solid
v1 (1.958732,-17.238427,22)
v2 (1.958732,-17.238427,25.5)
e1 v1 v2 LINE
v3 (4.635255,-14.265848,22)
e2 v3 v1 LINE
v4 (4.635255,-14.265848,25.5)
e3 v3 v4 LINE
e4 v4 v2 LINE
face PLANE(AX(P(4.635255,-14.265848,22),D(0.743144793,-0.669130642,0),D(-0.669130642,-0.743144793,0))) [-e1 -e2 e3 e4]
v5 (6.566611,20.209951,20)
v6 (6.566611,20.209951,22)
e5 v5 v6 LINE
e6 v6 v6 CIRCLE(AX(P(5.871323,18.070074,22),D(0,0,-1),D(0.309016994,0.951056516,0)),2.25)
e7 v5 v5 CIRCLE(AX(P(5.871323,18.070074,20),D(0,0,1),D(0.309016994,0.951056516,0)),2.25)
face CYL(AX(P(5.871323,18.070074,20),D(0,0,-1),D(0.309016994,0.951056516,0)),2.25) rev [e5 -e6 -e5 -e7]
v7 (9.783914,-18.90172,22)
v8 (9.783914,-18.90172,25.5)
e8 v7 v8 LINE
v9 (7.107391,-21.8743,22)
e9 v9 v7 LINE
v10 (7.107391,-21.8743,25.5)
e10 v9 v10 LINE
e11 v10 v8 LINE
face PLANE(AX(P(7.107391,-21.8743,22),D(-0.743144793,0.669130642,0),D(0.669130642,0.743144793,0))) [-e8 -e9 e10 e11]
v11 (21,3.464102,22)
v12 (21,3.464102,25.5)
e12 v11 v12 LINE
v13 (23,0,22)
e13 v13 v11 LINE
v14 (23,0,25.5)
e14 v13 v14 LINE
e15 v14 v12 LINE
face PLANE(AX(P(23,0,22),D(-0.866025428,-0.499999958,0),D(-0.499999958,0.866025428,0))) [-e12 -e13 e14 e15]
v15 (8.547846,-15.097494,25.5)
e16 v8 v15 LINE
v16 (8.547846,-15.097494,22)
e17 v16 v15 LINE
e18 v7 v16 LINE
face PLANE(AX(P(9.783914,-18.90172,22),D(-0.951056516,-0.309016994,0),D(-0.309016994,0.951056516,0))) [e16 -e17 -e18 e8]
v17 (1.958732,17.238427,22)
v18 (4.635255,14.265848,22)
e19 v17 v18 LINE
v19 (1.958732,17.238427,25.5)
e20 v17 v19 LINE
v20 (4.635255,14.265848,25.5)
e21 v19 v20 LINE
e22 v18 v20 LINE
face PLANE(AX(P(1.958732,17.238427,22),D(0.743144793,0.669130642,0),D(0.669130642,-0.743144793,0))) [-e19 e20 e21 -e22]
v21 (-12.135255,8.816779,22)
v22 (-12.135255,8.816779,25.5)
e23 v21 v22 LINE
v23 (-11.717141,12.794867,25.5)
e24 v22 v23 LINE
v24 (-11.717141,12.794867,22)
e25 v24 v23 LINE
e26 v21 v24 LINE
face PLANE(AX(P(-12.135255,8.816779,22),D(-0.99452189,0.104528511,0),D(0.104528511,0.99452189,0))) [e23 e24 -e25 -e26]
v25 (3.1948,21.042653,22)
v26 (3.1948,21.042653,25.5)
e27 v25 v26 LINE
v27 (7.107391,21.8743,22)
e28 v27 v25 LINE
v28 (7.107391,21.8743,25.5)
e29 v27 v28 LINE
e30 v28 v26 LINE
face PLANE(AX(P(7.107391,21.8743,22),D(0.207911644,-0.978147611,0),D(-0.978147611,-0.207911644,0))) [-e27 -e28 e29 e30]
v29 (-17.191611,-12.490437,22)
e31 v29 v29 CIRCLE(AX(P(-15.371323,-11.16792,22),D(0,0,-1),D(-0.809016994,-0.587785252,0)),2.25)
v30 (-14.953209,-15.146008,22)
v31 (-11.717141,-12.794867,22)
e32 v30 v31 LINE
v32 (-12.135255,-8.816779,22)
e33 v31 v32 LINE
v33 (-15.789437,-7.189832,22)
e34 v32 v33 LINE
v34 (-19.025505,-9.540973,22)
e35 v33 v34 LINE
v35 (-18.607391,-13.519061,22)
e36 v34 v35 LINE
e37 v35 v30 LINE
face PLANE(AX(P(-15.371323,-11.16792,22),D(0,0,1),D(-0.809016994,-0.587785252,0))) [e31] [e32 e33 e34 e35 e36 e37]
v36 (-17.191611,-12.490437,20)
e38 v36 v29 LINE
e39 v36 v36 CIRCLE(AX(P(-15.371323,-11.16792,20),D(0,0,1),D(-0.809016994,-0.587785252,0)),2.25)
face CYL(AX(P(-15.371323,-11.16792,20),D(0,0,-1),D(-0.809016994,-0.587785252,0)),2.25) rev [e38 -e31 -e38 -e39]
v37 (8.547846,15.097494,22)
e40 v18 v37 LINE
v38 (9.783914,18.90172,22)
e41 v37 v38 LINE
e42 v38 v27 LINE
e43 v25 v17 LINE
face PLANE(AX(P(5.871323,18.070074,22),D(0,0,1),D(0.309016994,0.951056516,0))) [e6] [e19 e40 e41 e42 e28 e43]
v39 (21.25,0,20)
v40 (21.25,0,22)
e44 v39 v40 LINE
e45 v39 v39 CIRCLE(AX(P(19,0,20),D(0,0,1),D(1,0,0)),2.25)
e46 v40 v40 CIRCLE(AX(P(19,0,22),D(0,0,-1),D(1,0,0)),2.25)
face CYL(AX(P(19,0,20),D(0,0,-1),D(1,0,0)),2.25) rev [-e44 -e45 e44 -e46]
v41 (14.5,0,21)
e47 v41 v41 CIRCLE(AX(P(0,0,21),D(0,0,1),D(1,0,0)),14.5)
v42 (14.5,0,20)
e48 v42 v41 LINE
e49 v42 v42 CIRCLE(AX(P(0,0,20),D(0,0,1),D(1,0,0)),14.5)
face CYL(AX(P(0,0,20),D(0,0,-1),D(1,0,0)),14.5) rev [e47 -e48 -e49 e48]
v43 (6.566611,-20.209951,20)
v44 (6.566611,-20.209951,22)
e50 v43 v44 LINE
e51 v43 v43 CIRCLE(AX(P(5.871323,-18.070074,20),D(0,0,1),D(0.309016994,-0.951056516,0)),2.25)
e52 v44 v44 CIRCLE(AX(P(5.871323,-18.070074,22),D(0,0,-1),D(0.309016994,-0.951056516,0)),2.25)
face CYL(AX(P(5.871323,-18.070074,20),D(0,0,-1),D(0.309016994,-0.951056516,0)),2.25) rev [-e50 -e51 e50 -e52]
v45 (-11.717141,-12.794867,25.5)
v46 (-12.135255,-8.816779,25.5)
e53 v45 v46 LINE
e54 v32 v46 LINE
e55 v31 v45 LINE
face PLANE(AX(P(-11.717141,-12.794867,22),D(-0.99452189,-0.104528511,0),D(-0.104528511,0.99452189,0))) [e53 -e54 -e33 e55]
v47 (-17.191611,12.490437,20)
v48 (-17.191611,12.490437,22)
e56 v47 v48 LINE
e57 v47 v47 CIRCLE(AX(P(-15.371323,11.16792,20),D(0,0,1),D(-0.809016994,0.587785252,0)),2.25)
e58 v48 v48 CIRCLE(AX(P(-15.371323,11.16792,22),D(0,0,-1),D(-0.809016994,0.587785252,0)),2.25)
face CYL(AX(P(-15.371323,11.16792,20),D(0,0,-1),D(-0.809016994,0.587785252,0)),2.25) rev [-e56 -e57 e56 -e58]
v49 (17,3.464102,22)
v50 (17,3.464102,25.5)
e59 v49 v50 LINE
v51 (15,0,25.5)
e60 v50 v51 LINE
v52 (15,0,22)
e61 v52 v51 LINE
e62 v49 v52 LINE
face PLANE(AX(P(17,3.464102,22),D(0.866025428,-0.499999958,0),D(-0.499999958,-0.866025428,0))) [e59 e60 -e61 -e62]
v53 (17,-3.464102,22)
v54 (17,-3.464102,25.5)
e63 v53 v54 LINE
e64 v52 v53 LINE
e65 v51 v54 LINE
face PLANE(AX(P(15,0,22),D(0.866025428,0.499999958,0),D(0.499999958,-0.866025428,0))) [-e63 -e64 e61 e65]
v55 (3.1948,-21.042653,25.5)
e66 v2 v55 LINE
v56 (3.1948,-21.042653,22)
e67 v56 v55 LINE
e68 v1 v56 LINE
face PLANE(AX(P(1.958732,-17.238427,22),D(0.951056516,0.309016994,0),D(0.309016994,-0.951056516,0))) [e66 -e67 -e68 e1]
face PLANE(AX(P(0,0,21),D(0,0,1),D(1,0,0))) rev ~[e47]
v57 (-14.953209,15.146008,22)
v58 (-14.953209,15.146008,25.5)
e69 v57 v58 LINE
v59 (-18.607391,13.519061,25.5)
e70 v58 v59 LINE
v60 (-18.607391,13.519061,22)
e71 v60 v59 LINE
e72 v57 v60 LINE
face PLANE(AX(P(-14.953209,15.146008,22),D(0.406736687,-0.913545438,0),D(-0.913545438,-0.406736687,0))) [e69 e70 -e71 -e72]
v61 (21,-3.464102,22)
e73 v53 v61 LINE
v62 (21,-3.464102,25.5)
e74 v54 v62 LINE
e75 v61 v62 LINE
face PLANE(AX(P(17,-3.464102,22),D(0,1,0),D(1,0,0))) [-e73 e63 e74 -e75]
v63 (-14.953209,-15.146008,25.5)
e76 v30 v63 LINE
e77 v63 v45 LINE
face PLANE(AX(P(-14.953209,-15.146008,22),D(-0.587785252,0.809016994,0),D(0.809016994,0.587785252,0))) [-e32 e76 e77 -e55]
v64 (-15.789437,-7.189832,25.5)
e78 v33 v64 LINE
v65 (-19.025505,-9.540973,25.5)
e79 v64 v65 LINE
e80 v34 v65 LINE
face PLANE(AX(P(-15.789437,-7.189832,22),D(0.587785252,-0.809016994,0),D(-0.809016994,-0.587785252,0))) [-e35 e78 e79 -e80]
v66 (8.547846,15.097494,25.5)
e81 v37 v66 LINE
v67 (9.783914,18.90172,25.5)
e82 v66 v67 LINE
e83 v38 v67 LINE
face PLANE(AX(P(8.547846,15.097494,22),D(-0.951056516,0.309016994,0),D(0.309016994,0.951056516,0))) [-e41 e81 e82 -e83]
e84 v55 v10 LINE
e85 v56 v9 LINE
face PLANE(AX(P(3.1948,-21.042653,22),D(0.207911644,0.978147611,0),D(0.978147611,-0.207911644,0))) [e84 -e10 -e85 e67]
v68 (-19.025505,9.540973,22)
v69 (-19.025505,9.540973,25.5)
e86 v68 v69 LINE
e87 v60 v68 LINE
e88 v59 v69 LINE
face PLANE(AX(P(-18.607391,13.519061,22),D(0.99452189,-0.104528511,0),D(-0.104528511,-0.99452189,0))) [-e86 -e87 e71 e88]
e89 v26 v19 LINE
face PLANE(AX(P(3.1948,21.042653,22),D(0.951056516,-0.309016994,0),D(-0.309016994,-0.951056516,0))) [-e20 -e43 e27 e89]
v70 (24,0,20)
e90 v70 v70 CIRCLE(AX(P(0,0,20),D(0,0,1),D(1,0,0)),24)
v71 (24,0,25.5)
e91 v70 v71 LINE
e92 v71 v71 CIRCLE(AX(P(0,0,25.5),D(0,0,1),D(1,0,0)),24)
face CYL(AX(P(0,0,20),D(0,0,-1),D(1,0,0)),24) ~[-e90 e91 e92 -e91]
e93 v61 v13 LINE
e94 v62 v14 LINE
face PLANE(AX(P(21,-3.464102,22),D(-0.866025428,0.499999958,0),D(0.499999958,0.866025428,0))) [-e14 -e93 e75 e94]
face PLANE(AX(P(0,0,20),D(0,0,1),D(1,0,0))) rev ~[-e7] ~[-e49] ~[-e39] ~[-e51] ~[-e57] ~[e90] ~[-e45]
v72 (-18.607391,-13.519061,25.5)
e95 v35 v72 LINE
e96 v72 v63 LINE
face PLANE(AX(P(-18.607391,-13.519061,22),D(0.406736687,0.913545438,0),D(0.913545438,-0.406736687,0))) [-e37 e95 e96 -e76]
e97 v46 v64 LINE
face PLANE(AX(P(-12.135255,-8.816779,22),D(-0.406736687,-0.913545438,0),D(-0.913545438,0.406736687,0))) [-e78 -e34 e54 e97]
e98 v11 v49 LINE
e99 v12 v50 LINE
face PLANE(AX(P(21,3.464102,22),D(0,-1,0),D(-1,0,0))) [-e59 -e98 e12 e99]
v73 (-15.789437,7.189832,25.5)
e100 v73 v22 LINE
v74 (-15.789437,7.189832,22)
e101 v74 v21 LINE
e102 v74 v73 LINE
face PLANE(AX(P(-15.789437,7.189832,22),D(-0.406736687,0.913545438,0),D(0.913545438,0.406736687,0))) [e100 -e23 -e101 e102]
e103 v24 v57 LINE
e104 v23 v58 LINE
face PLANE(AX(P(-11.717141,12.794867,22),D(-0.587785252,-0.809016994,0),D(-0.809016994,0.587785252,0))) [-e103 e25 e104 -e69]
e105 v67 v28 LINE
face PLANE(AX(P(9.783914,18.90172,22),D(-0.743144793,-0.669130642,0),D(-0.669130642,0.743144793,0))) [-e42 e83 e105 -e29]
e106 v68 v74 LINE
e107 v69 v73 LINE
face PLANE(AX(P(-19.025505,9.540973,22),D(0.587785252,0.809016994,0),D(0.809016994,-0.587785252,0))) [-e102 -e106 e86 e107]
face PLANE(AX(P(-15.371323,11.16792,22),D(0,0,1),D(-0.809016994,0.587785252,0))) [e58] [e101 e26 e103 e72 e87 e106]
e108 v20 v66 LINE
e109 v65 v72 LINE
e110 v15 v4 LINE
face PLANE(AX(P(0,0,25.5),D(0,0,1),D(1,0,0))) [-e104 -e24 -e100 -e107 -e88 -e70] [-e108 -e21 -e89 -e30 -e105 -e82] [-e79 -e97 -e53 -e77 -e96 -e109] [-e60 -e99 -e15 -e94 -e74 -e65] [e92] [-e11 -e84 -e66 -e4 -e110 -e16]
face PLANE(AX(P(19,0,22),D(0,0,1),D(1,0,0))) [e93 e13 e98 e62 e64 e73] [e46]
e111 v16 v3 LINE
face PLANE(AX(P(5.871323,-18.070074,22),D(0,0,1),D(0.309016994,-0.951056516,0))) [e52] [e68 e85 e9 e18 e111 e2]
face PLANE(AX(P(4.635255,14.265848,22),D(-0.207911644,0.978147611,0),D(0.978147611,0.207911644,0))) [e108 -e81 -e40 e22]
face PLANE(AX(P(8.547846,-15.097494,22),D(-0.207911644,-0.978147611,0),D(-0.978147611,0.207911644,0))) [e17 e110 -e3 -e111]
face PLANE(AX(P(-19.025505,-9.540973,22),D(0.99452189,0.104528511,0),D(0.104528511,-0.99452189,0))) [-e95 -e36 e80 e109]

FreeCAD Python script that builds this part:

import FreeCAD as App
import Part
import Sketcher
from FreeCAD import Vector
Q = App.Units.Quantity


def add_polygon(sketch, points):
    """Adds a closed chain of lines whose ends are joined by coincident constraints."""
    first, n = sketch.GeometryCount, len(points)
    for a, b in zip(points, points[1:] + points[:1]):
        sketch.addGeometry(Part.LineSegment(App.Vector(*a, 0), App.Vector(*b, 0)), False)
    for i in range(n):
        sketch.addConstraint(Sketcher.Constraint("Coincident", first + i, 2, first + (i + 1) % n, 1))

doc = App.newDocument("Part")
body = doc.addObject("PartDesign::Body", "Body")

sketch1 = body.newObject("Sketcher::SketchObject", "Sketch")
sketch1.AttachmentSupport = (doc.getObject("XY_Plane"), [""])
sketch1.MapMode = "FlatFace"
sketch1.AttachmentOffset = App.Placement(Vector(0, 0, 20), App.Rotation())
sketch1.addGeometry(Part.Circle(Vector(0, 0, 0), Vector(0, 0, 1), 14), False)
sketch1.addConstraint(Sketcher.Constraint("Coincident", 0, 3, -1, 1))
sketch1.addConstraint(Sketcher.Constraint("Diameter", 0, Q("29 mm")))
pad1 = body.newObject("PartDesign::Pad", "Pad")
pad1.Profile = sketch1
pad1.Length = 1
body2 = doc.addObject("PartDesign::Body", "Body001")

sketch2 = body2.newObject("Sketcher::SketchObject", "Sketch001")
sketch2.AttachmentSupport = (doc.getObject("XY_Plane001"), [""])
sketch2.MapMode = "FlatFace"
add_polygon(sketch2, [(4, 0), (2, 3.5), (-2, 3.5), (-4, 0), (-2, -3.5), (2, -3.5)])
sketch2.addConstraint(Sketcher.Constraint("Horizontal", 1))
sketch2.addConstraint(Sketcher.Constraint("Horizontal", 4))
sketch2.addConstraint(Sketcher.Constraint("Symmetric", 0, 2, 3, 2, -1, 1))
sketch2.addConstraint(Sketcher.Constraint("Symmetric", 2, 2, 5, 2, -1, 1))
sketch2.addConstraint(Sketcher.Constraint("PointOnObject", 2, 2, -1))
sketch2.addConstraint(Sketcher.Constraint("Parallel", 2, 5))
sketch2.addConstraint(Sketcher.Constraint("Vertical", 1, 2, 3, 2))
sketch2.addConstraint(Sketcher.Constraint("DistanceX", 1, 2, 1, 1, Q("4 mm")))
sketch2.addConstraint(Sketcher.Constraint("Angle", 0, Q("119.999997 deg")))
sketch2.addConstraint(Sketcher.Constraint("Distance", 0, Q("4 mm")))
pad2 = body2.newObject("PartDesign::Pad", "Pad001")
pad2.Profile = sketch2
pad2.Length = 3.5
body3 = doc.addObject("PartDesign::Body", "Body002")
doc.recompute()

body2.Placement = App.Placement(Vector(19, 0, 22), App.Rotation(Vector(0, 0, 1), 0))
boolean = body3.newObject("PartDesign::Boolean", "Boolean")
boolean.Type = "Fuse"
boolean.addObjects([body2])
body4 = doc.addObject("PartDesign::Body", "Body003")

sketch3 = body4.newObject("Sketcher::SketchObject", "Sketch002")
sketch3.AttachmentSupport = (doc.getObject("XY_Plane003"), [""])
sketch3.MapMode = "FlatFace"
sketch3.AttachmentOffset = App.Placement(Vector(0, 0, 20), App.Rotation())
sketch3.addGeometry(Part.Circle(Vector(19, 0, 0), Vector(0, 0, 1), 2.2), False)
sketch3.addConstraint(Sketcher.Constraint("PointOnObject", 0, 3, -1))
sketch3.addConstraint(Sketcher.Constraint("Diameter", 0, Q("4.5 mm")))
sketch3.addConstraint(Sketcher.Constraint("DistanceX", -1, 1, 0, 3, Q("19 mm")))
pad3 = body4.newObject("PartDesign::Pad", "Pad002")
pad3.Profile = sketch3
pad3.Length = 10
doc.recompute()

boolean2 = body4.newObject("PartDesign::Boolean", "Boolean001")
boolean2.Type = "Fuse"
boolean2.addObjects([body3])
body5 = doc.addObject("PartDesign::Body", "Body004")
body5.AllowCompound = True
doc.recompute()

body5.BaseFeature = body4
doc.recompute()

body6 = doc.addObject("PartDesign::Body", "Body005")
body6.BaseFeature = body4
body6.Placement = App.Placement(Vector(0, 0, 0), App.Rotation(Vector(0, 0, 1), 72))
boolean3 = body5.newObject("PartDesign::Boolean", "Boolean002")
boolean3.Type = "Fuse"
boolean3.addObjects([body6])
doc.recompute()

body7 = doc.addObject("PartDesign::Body", "Body006")
body7.BaseFeature = body4
body7.Placement = App.Placement(Vector(0, 0, 0), App.Rotation(Vector(0, 0, 1), 144))
boolean4 = body5.newObject("PartDesign::Boolean", "Boolean003")
boolean4.Type = "Fuse"
boolean4.addObjects([body7])
doc.recompute()

body8 = doc.addObject("PartDesign::Body", "Body007")
body8.BaseFeature = body4
body8.Placement = App.Placement(Vector(0, 0, 0), App.Rotation(Vector(0, 0, 1), 216))
boolean5 = body5.newObject("PartDesign::Boolean", "Boolean004")
boolean5.Type = "Fuse"
boolean5.addObjects([body8])
doc.recompute()

body4.Placement = App.Placement(Vector(0, 0, 0), App.Rotation(Vector(0, 0, 1), 288))
boolean6 = body5.newObject("PartDesign::Boolean", "Boolean005")
boolean6.Type = "Fuse"
boolean6.addObjects([body4])
body9 = doc.addObject("PartDesign::Body", "Body008")

sketch4 = body9.newObject("Sketcher::SketchObject", "Sketch003")
sketch4.AttachmentSupport = (doc.getObject("XY_Plane008"), [""])
sketch4.MapMode = "FlatFace"
sketch4.AttachmentOffset = App.Placement(Vector(0, 0, 20), App.Rotation())
sketch4.addGeometry(Part.Circle(Vector(0, 0, 0), Vector(0, 0, 1), 24), False)
sketch4.addConstraint(Sketcher.Constraint("Coincident", 0, 3, -1, 1))
sketch4.addConstraint(Sketcher.Constraint("Diameter", 0, Q("48 mm")))
pad4 = body9.newObject("PartDesign::Pad", "Pad003")
pad4.Profile = sketch4
pad4.Length = 5.5
doc.recompute()

boolean7 = body9.newObject("PartDesign::Boolean", "Boolean006")
boolean7.Type = "Cut"
boolean7.addObjects([body5])
doc.recompute()

boolean8 = body9.newObject("PartDesign::Boolean", "Boolean007")
boolean8.Type = "Cut"
boolean8.addObjects([body])

doc.recompute()
